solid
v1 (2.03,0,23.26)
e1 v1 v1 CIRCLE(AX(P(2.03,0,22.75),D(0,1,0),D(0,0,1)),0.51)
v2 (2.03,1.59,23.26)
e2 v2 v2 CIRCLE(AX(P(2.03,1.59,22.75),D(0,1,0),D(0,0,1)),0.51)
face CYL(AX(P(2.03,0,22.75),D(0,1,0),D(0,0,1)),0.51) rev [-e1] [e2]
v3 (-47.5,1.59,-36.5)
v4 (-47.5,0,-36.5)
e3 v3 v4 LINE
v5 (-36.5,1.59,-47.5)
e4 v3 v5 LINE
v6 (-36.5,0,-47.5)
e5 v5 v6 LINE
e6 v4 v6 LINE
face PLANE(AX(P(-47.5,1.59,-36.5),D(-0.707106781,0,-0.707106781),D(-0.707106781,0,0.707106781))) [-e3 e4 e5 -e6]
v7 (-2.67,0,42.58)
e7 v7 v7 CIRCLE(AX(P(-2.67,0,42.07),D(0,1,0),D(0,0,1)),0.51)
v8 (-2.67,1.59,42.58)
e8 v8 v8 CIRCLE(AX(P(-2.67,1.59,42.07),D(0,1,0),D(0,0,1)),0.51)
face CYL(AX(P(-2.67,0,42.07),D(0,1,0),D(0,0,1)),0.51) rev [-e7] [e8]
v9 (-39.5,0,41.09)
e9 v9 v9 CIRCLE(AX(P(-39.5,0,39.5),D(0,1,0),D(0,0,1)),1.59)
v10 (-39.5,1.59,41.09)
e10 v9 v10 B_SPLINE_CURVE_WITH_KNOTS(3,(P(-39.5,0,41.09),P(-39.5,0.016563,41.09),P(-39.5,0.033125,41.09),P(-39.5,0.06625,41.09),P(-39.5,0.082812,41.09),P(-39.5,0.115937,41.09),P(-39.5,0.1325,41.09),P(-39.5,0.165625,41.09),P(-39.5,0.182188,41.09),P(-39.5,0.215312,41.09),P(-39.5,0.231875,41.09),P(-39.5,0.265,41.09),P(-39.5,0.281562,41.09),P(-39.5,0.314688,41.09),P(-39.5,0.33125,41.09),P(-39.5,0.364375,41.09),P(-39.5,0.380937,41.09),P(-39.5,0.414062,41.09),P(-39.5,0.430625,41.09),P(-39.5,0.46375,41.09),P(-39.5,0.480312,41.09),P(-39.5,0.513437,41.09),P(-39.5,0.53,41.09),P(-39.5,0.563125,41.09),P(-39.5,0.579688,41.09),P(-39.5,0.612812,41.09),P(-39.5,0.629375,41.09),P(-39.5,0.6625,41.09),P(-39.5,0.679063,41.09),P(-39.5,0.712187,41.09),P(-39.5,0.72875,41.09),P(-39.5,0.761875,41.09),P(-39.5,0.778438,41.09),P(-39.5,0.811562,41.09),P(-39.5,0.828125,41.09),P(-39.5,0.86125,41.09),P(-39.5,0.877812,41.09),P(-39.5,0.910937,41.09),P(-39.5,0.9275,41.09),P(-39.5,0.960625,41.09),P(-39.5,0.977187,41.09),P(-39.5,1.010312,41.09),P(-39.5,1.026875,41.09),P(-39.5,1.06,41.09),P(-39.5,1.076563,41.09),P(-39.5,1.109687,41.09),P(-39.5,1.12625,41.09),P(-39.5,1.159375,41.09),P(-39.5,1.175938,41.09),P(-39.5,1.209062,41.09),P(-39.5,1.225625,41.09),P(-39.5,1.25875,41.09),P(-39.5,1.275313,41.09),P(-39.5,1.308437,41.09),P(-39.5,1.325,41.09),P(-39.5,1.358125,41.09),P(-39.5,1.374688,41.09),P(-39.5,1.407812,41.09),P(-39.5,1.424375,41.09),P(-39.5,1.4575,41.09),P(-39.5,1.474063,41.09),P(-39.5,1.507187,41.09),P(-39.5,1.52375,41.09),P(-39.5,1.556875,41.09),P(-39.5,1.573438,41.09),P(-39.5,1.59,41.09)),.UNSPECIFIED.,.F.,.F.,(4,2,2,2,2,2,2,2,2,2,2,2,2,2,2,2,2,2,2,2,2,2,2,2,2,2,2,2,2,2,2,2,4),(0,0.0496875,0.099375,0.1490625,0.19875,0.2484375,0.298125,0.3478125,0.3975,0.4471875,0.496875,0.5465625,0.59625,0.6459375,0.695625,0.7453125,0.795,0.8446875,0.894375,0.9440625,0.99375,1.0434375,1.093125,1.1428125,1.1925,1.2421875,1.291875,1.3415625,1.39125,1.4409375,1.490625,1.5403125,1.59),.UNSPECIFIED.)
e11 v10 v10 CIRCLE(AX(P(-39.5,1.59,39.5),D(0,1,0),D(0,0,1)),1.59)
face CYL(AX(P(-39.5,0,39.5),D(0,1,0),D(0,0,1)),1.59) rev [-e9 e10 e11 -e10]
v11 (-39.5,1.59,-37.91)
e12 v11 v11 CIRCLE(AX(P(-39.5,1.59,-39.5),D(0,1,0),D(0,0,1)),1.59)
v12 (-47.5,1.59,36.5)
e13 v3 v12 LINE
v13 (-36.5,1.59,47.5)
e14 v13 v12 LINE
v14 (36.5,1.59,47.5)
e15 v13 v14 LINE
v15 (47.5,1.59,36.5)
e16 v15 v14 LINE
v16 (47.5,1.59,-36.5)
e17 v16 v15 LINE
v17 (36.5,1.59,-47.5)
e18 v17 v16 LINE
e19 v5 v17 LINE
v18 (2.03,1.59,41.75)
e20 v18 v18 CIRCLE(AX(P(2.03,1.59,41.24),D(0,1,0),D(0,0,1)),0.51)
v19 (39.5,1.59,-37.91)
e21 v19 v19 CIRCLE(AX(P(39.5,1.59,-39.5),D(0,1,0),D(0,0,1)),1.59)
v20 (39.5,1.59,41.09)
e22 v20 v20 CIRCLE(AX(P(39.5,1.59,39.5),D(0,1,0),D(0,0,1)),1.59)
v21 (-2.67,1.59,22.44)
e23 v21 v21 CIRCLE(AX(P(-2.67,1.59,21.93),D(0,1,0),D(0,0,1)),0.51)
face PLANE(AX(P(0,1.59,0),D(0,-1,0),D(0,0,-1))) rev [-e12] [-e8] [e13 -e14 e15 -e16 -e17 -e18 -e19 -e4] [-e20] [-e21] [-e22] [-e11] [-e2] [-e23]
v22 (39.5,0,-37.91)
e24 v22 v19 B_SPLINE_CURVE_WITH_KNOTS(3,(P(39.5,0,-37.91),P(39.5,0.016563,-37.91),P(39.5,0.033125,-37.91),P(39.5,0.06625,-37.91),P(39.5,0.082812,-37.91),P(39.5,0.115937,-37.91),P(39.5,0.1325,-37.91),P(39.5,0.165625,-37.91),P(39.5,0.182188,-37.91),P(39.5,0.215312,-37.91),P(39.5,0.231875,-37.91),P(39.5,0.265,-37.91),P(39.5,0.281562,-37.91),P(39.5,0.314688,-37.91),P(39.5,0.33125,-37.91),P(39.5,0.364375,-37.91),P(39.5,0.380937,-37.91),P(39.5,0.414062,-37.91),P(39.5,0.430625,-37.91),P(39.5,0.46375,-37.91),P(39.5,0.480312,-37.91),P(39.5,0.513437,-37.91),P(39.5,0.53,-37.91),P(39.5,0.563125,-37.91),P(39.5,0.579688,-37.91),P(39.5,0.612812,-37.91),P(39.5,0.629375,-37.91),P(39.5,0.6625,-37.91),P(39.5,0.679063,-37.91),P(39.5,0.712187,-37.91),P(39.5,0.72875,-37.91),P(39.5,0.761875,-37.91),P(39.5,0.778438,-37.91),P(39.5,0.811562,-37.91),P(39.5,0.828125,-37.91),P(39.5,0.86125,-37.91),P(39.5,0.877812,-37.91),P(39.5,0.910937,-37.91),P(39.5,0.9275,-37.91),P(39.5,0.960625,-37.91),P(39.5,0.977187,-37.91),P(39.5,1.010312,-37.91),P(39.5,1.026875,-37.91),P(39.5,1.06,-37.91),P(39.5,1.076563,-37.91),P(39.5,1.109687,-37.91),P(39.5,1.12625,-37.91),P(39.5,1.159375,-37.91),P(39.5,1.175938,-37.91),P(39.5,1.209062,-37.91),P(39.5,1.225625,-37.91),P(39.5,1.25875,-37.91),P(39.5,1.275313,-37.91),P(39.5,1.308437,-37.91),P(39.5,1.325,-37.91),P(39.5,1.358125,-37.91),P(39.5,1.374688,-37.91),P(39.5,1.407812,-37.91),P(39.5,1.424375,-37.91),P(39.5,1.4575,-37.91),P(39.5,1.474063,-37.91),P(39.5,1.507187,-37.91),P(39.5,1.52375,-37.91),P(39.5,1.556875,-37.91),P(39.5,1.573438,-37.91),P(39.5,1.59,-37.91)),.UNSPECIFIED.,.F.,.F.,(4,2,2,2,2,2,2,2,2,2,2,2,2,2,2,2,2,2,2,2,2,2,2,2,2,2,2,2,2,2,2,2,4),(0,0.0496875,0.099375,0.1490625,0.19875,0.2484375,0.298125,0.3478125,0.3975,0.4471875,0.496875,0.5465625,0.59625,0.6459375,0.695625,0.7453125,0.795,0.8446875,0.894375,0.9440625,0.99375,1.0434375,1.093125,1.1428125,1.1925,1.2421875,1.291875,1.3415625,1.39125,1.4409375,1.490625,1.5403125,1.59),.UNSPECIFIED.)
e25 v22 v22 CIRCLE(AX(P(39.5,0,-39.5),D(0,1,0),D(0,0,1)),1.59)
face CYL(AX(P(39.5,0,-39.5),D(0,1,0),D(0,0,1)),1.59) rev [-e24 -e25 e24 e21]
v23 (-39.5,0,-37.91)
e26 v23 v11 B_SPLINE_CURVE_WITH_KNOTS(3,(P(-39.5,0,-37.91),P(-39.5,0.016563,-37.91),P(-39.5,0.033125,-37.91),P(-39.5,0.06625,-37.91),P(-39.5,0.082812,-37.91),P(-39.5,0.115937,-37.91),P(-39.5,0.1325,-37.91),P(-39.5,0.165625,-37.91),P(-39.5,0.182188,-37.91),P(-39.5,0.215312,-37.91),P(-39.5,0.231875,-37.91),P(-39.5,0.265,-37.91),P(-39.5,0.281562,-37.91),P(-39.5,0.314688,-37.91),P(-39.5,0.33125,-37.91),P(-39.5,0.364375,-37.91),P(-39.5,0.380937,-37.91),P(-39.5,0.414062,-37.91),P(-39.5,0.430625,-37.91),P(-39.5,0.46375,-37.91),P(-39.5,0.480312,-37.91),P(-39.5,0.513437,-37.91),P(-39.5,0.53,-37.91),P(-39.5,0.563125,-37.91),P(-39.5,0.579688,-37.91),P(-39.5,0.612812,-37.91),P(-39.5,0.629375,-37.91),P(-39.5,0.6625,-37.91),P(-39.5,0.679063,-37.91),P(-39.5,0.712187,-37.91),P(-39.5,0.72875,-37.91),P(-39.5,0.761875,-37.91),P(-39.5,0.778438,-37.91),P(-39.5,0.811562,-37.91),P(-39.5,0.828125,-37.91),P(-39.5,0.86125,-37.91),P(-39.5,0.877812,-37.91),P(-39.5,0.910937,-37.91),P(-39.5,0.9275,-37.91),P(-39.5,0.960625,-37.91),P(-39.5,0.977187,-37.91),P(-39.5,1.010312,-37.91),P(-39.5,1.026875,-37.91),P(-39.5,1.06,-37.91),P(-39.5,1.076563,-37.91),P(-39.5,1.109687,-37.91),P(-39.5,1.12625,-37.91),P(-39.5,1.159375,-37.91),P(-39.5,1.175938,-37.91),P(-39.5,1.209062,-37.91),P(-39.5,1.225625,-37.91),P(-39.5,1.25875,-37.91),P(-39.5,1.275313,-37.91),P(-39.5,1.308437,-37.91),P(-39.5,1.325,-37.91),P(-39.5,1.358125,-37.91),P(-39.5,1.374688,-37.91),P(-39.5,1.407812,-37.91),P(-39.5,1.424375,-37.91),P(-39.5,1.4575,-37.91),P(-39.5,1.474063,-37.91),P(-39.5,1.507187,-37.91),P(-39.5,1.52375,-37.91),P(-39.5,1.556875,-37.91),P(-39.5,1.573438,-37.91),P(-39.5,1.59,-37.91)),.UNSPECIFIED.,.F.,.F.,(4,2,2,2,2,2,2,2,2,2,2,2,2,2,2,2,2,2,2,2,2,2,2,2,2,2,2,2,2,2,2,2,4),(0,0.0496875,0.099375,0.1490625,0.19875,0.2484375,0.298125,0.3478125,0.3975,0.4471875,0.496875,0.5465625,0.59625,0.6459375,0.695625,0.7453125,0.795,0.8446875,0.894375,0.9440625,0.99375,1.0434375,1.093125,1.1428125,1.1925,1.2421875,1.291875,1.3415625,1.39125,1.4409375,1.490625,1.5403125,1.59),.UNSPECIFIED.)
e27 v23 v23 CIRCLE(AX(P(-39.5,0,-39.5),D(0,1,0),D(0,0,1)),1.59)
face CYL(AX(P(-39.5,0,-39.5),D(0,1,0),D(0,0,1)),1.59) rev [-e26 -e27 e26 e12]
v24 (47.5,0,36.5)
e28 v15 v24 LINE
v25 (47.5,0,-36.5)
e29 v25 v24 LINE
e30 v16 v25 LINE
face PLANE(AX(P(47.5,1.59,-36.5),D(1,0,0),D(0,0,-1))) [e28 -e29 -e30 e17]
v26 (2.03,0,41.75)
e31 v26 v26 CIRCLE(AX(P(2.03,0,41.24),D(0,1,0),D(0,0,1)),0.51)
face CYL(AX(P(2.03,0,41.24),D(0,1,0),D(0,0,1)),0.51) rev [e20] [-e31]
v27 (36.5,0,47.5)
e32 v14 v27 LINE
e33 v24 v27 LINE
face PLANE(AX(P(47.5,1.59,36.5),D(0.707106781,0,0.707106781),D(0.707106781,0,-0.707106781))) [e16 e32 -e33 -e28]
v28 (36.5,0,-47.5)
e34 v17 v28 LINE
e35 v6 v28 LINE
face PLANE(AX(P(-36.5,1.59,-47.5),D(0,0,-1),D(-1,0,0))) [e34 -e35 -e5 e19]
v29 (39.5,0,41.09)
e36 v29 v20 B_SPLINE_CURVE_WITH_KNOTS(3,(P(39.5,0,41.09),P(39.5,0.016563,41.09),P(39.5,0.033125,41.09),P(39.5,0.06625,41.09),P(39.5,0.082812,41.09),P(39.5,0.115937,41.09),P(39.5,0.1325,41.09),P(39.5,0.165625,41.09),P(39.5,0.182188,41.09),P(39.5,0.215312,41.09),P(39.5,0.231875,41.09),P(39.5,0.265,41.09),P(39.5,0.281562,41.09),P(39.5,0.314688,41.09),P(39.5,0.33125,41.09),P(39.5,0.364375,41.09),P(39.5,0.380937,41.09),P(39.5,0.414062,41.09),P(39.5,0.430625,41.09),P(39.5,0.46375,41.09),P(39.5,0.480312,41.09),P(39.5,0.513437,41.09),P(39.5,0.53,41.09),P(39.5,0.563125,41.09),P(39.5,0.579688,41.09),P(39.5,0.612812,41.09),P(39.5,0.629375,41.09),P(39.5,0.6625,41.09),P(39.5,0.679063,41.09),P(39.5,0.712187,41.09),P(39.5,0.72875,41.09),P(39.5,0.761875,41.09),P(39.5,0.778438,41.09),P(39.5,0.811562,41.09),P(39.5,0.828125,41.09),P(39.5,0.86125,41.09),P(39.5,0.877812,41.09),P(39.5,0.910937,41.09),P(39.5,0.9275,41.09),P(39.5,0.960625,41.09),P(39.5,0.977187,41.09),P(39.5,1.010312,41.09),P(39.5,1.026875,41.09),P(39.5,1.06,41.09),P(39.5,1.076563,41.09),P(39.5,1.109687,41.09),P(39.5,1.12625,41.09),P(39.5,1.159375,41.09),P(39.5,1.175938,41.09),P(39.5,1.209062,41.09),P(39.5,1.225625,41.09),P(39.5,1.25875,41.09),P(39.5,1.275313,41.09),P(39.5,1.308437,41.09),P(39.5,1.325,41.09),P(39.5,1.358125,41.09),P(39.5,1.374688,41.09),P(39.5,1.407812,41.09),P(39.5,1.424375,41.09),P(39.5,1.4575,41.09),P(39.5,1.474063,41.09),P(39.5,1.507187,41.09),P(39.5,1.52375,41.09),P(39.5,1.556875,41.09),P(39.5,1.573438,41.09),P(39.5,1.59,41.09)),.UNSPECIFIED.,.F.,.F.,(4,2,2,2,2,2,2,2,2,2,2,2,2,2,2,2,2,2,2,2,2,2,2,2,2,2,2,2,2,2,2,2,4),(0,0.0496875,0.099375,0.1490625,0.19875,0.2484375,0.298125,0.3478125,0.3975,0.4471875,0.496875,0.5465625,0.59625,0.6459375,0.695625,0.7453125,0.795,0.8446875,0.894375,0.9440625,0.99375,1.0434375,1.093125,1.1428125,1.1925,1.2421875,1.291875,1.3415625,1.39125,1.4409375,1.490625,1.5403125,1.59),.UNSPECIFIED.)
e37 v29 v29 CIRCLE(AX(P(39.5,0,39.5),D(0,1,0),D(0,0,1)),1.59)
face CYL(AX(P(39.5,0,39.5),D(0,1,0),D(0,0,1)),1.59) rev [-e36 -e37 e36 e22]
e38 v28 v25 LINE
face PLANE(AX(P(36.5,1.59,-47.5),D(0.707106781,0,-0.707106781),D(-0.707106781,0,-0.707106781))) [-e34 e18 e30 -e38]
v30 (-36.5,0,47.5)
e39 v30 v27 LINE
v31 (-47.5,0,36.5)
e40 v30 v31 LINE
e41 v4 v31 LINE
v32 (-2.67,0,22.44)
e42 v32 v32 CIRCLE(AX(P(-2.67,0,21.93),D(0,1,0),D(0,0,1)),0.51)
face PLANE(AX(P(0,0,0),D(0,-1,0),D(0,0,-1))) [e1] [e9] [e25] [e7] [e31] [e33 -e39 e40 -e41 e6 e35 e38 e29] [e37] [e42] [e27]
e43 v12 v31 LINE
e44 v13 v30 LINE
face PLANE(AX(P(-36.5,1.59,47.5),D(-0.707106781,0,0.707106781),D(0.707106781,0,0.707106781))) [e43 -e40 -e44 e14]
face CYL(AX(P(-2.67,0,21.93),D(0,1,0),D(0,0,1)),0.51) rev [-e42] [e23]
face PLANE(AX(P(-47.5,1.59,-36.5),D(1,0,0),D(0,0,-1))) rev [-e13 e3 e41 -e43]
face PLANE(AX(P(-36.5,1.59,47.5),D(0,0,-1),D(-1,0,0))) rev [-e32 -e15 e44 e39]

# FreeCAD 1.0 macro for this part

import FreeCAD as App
import Part
import Sketcher

V = App.Vector

doc = App.newDocument("Part")
body = doc.addObject("PartDesign::Body", "Body")

sketch1 = body.newObject("Sketcher::SketchObject", "Sketch")
sketch1.AttachmentSupport = (doc.getObject("XZ_Plane"), [""])
sketch1.MapMode = "FlatFace"
sketch1.addGeometry([
    Part.LineSegment(V(-36, -48, 0), V(-48, -36, 0)),
    Part.LineSegment(V(-48, -36, 0), V(-48, 36, 0)),
    Part.LineSegment(V(-48, 36, 0), V(-36, 48, 0)),
    Part.LineSegment(V(-36, 48, 0), V(36, 48, 0)),
    Part.LineSegment(V(36, 48, 0), V(48, 36, 0)),
    Part.LineSegment(V(48, 36, 0), V(48, -36, 0)),
    Part.LineSegment(V(48, -36, 0), V(36, -48, 0)),
    Part.LineSegment(V(36, -48, 0), V(-36, -48, 0)),
], False)
sketch1.addConstraint([
    Sketcher.Constraint("Coincident", 0, 2, 1, 1),
    Sketcher.Constraint("Coincident", 1, 2, 2, 1),
    Sketcher.Constraint("Coincident", 2, 2, 3, 1),
    Sketcher.Constraint("Coincident", 3, 2, 4, 1),
    Sketcher.Constraint("Coincident", 4, 2, 5, 1),
    Sketcher.Constraint("Coincident", 5, 2, 6, 1),
    Sketcher.Constraint("Coincident", 6, 2, 7, 1),
    Sketcher.Constraint("Coincident", 7, 2, 0, 1),
    Sketcher.Constraint("Vertical", 1),
    Sketcher.Constraint("Horizontal", 3),
    Sketcher.Constraint("Vertical", 5),
    Sketcher.Constraint("Horizontal", 7),
    Sketcher.Constraint("Symmetric", 0, 2, 4, 2, -1, 1),
    Sketcher.Constraint("Symmetric", 2, 2, 6, 2, -1, 1),
    Sketcher.Constraint("Perpendicular", 0, 2),
    Sketcher.Constraint("Perpendicular", 2, 4),
    Sketcher.Constraint("Perpendicular", 4, 6),
    Sketcher.Constraint("Horizontal", 1, 2, 4, 2),
    Sketcher.Constraint("Vertical", 3, 2, 6, 2),
    Sketcher.Constraint("Equal", 7, 1),
    Sketcher.Constraint("DistanceX", 3, 1, 3, 2, 73.0),
    Sketcher.Constraint("DistanceX", 1, 2, 2, 2, 11.0),
])
pad1 = body.newObject("PartDesign::Pad", "Pad")
pad1.Profile = sketch1
pad1.Length = 1.59
pad1.Reversed = True

sketch2 = body.newObject("Sketcher::SketchObject", "Sketch001")
sketch2.AttachmentSupport = (doc.getObject("XZ_Plane"), [""])
sketch2.MapMode = "FlatFace"
sketch2.AttachmentOffset = App.Placement(V(0, 0, -1.59), App.Rotation())
sketch2.addGeometry([
    Part.Circle(V(-39.5, -39.5, 0), V(0, 0, 1), 1.6),
    Part.Circle(V(-39.5, 39.5, 0), V(0, 0, 1), 1.6),
    Part.Circle(V(39.5, 39.5, 0), V(0, 0, 1), 1.6),
    Part.Circle(V(39.5, -39.5, 0), V(0, 0, 1), 1.6),
    Part.Circle(V(-2.7, 21.9, 0), V(0, 0, 1), 0.5),
    Part.Circle(V(2, 22.8, 0), V(0, 0, 1), 0.5),
    Part.Circle(V(-2.7, 42.1, 0), V(0, 0, 1), 0.5),
    Part.Circle(V(2, 41.2, 0), V(0, 0, 1), 0.5),
], False)
sketch2.addConstraint([
    Sketcher.Constraint("Equal", 0, 1),
    Sketcher.Constraint("Equal", 1, 2),
    Sketcher.Constraint("Equal", 2, 3),
    Sketcher.Constraint("Equal", 4, 5),
    Sketcher.Constraint("Equal", 5, 6),
    Sketcher.Constraint("Equal", 6, 7),
    Sketcher.Constraint("Symmetric", 0, 3, 2, 3, -1, 1),
    Sketcher.Constraint("Symmetric", 1, 3, 3, 3, -1, 1),
    Sketcher.Constraint("Symmetric", 1, 3, 2, 3, -2),
    Sketcher.Constraint("Vertical", 4, 3, 6, 3),
    Sketcher.Constraint("Vertical", 5, 3, 7, 3),
    Sketcher.Constraint("Diameter", 0, 3.18),
    Sketcher.Constraint("Diameter", 4, 1.02),
    Sketcher.Constraint("DistanceY", 0, 3, 1, 3, 79.0),
    Sketcher.Constraint("DistanceX", 1, 3, 2, 3, 79.0),
    Sketcher.Constraint("DistanceX", 4, 3, 5, 3, 4.7),
    Sketcher.Constraint("DistanceX", 4, 3, -1, 1, 2.67),
    Sketcher.Constraint("DistanceY", -1, 1, 4, 3, 21.93),
    Sketcher.Constraint("DistanceY", -1, 1, 5, 3, 22.75),
    Sketcher.Constraint("DistanceY", -1, 1, 6, 3, 42.07),
    Sketcher.Constraint("DistanceY", -1, 1, 7, 3, 41.24),
])
pocket1 = body.newObject("PartDesign::Pocket", "Pocket")
pocket1.Profile = sketch2
pocket1.Type = "ThroughAll"
pocket1.Reversed = True

doc.recompute()
